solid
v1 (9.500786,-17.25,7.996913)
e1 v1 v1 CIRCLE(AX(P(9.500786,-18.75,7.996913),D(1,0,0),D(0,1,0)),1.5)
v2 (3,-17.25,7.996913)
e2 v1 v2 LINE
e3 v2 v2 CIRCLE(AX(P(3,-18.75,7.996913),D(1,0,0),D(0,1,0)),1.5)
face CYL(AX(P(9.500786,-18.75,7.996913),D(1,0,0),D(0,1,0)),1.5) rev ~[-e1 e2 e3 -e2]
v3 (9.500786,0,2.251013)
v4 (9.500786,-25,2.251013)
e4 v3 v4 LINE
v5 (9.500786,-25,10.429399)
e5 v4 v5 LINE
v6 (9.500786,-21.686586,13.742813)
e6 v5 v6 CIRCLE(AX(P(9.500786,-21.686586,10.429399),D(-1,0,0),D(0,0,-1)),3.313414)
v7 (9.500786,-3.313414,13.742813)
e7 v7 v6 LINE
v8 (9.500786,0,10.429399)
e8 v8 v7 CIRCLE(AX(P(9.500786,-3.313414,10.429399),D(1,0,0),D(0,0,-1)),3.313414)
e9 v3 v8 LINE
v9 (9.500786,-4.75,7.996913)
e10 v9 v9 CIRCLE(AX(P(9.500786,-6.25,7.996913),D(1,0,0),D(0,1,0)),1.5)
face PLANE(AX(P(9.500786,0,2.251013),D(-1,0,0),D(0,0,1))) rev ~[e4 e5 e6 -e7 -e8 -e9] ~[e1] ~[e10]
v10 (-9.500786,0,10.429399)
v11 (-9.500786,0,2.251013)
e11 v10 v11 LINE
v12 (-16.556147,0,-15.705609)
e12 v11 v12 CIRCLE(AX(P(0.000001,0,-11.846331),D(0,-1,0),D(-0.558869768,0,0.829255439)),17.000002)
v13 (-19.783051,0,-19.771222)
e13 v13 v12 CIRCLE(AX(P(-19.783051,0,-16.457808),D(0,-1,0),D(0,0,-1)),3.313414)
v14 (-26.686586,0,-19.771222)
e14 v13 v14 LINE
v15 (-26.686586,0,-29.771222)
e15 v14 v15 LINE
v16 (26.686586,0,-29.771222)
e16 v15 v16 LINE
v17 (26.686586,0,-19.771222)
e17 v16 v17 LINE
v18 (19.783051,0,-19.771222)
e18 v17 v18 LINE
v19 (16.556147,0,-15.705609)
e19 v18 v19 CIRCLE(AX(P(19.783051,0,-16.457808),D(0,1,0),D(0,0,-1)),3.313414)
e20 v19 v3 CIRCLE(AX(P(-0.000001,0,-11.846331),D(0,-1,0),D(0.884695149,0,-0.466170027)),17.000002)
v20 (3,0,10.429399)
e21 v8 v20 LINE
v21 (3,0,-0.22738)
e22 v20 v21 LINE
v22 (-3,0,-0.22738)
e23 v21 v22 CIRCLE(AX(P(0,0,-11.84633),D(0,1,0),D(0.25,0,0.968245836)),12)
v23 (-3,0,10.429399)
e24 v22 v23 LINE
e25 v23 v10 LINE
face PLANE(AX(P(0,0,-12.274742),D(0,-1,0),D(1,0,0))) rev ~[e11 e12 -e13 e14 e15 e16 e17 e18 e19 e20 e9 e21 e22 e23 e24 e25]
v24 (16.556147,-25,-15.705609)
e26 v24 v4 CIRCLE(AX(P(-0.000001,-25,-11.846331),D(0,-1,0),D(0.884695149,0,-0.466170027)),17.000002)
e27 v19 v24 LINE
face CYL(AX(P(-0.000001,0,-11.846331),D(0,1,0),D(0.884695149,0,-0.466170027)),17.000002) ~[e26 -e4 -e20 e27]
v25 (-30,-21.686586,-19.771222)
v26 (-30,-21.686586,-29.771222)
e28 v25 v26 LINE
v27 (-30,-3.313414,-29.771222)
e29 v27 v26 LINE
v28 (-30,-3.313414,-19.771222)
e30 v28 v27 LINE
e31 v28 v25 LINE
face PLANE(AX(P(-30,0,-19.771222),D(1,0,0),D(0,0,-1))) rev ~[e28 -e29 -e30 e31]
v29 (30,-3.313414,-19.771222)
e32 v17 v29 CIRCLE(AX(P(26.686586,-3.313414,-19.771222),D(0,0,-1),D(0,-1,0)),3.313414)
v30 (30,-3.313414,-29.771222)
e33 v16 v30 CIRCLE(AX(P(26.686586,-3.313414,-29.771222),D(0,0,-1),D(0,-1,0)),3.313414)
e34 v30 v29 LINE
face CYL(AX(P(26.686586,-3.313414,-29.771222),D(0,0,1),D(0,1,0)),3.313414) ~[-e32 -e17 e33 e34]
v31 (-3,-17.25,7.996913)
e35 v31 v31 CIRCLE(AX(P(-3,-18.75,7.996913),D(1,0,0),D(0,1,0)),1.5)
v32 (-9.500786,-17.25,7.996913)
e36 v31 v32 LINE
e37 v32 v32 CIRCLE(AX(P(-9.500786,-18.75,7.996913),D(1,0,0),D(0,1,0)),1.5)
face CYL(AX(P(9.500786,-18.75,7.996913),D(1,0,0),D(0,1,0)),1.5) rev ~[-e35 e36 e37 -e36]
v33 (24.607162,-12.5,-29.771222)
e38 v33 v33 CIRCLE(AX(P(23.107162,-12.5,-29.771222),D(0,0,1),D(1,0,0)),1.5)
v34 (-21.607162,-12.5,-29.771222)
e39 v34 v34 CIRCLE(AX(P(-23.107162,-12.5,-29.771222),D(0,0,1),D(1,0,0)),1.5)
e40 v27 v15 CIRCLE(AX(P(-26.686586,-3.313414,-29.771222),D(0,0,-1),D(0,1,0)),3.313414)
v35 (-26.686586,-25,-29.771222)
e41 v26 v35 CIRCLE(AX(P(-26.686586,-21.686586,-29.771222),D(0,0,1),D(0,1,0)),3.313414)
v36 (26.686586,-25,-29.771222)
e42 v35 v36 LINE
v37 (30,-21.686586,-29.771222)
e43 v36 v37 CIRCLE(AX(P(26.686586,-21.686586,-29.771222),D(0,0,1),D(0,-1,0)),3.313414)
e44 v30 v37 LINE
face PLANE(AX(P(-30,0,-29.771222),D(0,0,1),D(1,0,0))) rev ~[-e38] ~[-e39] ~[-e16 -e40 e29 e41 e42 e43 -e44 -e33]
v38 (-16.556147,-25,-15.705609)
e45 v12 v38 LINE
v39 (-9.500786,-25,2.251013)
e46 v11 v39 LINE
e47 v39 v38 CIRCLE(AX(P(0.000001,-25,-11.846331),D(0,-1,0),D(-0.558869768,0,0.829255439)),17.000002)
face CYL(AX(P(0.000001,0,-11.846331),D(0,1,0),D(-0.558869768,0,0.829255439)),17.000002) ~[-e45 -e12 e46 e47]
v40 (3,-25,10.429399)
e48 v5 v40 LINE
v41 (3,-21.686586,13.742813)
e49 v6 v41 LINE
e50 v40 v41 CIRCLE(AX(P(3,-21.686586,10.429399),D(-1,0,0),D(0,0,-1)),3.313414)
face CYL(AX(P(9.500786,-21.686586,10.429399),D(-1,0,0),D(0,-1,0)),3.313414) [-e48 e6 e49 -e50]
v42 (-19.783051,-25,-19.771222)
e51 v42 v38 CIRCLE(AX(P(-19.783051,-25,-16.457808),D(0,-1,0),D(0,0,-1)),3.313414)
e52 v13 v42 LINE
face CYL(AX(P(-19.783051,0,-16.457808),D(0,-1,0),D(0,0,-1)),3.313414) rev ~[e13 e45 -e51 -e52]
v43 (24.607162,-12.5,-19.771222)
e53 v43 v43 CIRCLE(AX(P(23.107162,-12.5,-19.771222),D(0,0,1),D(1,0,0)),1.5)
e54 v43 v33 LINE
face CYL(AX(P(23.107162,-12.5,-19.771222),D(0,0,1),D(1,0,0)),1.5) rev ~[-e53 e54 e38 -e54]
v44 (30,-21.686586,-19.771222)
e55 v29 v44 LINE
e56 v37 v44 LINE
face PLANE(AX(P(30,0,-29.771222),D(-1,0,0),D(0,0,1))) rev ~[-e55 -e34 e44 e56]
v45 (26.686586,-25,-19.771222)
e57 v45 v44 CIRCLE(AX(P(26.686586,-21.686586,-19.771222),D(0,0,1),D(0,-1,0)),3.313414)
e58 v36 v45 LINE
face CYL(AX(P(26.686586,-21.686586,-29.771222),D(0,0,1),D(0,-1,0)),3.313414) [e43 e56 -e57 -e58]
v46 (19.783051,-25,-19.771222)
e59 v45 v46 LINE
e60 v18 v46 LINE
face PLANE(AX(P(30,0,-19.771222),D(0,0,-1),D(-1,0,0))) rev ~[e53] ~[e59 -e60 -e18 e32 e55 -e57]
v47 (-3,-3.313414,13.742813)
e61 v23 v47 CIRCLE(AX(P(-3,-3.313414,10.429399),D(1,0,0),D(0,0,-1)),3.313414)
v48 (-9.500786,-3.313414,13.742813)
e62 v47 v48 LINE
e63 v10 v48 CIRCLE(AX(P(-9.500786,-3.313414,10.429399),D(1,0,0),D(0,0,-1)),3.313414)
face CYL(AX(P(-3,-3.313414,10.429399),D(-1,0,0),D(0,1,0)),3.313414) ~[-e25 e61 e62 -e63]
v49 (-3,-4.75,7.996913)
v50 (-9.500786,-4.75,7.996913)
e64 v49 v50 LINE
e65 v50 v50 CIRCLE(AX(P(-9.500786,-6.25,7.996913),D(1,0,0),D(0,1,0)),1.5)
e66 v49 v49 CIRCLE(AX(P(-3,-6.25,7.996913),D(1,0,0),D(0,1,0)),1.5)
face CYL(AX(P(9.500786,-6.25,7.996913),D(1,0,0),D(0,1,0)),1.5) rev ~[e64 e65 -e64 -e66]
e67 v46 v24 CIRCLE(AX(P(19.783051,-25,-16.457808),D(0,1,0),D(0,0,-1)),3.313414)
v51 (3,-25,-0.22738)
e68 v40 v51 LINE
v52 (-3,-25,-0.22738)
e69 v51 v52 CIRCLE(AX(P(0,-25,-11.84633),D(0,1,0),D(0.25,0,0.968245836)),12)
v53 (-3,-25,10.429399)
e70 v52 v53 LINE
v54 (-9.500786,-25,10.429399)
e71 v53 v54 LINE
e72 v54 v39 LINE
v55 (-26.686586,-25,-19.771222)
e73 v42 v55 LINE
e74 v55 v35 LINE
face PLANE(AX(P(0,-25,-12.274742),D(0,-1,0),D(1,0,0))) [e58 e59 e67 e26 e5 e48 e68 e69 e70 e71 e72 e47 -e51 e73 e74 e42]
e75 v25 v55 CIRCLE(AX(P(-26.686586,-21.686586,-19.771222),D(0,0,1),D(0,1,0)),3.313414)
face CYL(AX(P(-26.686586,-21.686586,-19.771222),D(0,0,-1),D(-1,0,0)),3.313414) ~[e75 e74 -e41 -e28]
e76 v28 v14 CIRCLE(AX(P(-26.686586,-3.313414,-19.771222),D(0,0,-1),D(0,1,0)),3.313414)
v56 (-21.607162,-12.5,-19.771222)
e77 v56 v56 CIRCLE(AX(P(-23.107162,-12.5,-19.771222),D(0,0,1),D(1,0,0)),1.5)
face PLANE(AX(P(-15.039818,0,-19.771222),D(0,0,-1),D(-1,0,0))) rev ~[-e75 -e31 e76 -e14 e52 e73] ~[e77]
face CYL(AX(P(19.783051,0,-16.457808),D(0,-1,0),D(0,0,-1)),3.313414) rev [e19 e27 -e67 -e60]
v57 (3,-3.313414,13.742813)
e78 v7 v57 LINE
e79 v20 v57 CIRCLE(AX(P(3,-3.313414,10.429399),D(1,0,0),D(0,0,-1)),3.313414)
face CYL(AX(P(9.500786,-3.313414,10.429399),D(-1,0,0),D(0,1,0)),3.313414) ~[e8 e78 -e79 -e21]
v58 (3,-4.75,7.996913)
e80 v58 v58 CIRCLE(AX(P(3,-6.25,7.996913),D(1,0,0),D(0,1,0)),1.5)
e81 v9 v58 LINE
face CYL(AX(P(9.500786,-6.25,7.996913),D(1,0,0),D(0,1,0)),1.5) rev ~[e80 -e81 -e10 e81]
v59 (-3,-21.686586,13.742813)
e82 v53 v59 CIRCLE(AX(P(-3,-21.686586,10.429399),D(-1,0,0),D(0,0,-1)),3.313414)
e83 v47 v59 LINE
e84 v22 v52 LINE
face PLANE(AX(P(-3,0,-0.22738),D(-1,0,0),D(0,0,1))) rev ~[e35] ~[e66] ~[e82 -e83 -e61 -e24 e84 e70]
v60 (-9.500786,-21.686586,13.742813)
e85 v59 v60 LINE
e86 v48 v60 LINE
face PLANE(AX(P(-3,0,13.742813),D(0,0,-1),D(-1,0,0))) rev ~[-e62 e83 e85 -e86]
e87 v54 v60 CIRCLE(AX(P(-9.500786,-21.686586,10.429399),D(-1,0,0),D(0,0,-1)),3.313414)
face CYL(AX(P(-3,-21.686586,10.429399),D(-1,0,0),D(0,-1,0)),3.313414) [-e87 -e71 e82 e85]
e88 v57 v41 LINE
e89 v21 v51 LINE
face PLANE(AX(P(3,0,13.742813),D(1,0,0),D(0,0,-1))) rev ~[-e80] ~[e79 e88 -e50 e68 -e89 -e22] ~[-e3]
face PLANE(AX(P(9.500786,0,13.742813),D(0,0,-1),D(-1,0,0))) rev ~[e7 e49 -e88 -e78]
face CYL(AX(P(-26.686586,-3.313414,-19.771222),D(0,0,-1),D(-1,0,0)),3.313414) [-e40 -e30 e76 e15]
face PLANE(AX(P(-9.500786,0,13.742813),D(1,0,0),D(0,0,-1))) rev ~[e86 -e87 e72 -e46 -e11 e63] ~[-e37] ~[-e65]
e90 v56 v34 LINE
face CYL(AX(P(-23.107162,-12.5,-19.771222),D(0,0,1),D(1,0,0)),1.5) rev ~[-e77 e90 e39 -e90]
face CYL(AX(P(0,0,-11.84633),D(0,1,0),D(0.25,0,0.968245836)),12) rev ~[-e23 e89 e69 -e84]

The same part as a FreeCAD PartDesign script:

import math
import FreeCAD as App
import Part
import Sketcher


def edges_at(feature, points):
    """Names of the edges that pass closest to the given points."""
    edges = feature.Shape.Edges
    near = lambda p: min(range(len(edges)), key=lambda i: edges[i].distToShape(Part.Vertex(*p))[0])
    return sorted({f"Edge{near(p) + 1}" for p in points})

doc = App.newDocument("Part")
params = doc.addObject("Spreadsheet::Sheet", "Params")
for row, (alias, value) in enumerate([
    ("sketch1_radius", "17.000002 mm"),
    ("sketch1_radius2", "12 mm"),
    ("sketch1_width", "60 mm"),
    ("sketch1_height", "10 mm"),
    ("pad1_length", "25 mm"),
    ("sketch2_diameter", "3 mm"),
    ("pocket1_length", "25 mm"),
    ("sketch3_diameter", "3 mm"),
    ("pocket2_length", "25 mm"),
    ("fillet_radius", "3.313414 mm"),
], start=1):
    params.set(f"A{row}", alias)
    params.set(f"B{row}", "=" + value)
    params.setAlias(f"B{row}", alias)

body = doc.addObject("PartDesign::Body", "Body")

sketch1 = doc.addObject("Sketcher::SketchObject", "Sketch")
body.addObject(sketch1)
sketch1.AttachmentSupport = (doc.XZ_Plane, [""])
sketch1.MapMode = "FlatFace"
sketch1.addGeometry([
    Part.LineSegment(App.Vector(-30, -29.771222, 0), App.Vector(30, -29.771222, 0)),
    Part.LineSegment(App.Vector(30, -29.771222, 0), App.Vector(30, -19.771222, 0)),
    Part.LineSegment(App.Vector(30, -19.771222, 0), App.Vector(15.039818, -19.771222, 0)),
    Part.ArcOfCircle(Part.Circle(App.Vector(-0.000001, -11.846331, 0), App.Vector(0, 0, 1), 17.000002), math.radians(-27.78597), math.radians(56.022329)),
    Part.LineSegment(App.Vector(9.500786, 2.251013, 0), App.Vector(9.500786, 13.742813, 0)),
    Part.LineSegment(App.Vector(9.500786, 13.742813, 0), App.Vector(3, 13.742813, 0)),
    Part.LineSegment(App.Vector(3, 13.742813, 0), App.Vector(3, -0.22738, 0)),
    Part.ArcOfCircle(Part.Circle(App.Vector(0, -11.84633, 0), App.Vector(0, 0, 1), 12), math.radians(104.477512), math.radians(435.522488)),
    Part.LineSegment(App.Vector(-3, -0.22738, 0), App.Vector(-3, 13.742813, 0)),
    Part.LineSegment(App.Vector(-3, 13.742813, 0), App.Vector(-9.500786, 13.742813, 0)),
    Part.LineSegment(App.Vector(-9.500786, 13.742813, 0), App.Vector(-9.500786, 2.251013, 0)),
    Part.ArcOfCircle(Part.Circle(App.Vector(0.000001, -11.846331, 0), App.Vector(0, 0, 1), 17.000002), math.radians(123.977671), math.radians(207.78597)),
    Part.LineSegment(App.Vector(-15.039818, -19.771222, 0), App.Vector(-30, -19.771222, 0)),
    Part.LineSegment(App.Vector(-30, -19.771222, 0), App.Vector(-30, -29.771222, 0)),
], False)
sketch1.addConstraint([
    Sketcher.Constraint("Coincident", 0, 2, 1, 1),
    Sketcher.Constraint("Coincident", 1, 2, 2, 1),
    Sketcher.Constraint("Coincident", 2, 2, 3, 1),
    Sketcher.Constraint("Coincident", 3, 2, 4, 1),
    Sketcher.Constraint("Coincident", 4, 2, 5, 1),
    Sketcher.Constraint("Coincident", 5, 2, 6, 1),
    Sketcher.Constraint("Coincident", 6, 2, 7, 2),
    Sketcher.Constraint("Coincident", 7, 1, 8, 1),
    Sketcher.Constraint("Coincident", 8, 2, 9, 1),
    Sketcher.Constraint("Coincident", 9, 2, 10, 1),
    Sketcher.Constraint("Coincident", 10, 2, 11, 1),
    Sketcher.Constraint("Coincident", 11, 2, 12, 1),
    Sketcher.Constraint("Coincident", 12, 2, 13, 1),
    Sketcher.Constraint("Coincident", 13, 2, 0, 1),
    Sketcher.Constraint("Horizontal", 0),
    Sketcher.Constraint("Vertical", 1),
    Sketcher.Constraint("Horizontal", 2),
    Sketcher.Constraint("Vertical", 4),
    Sketcher.Constraint("Horizontal", 5),
    Sketcher.Constraint("Vertical", 6),
    Sketcher.Constraint("Vertical", 8),
    Sketcher.Constraint("Horizontal", 9),
    Sketcher.Constraint("Vertical", 10),
    Sketcher.Constraint("Horizontal", 12),
    Sketcher.Constraint("Vertical", 13),
    Sketcher.Constraint("Coincident", 7, 3, 3, 3),
    Sketcher.Constraint("Coincident", 11, 3, 3, 3),
    Sketcher.Constraint("Equal", 3, 11),
    Sketcher.Constraint("Symmetric", 6, 2, 7, 1, -2),
    Sketcher.Constraint("Symmetric", 4, 2, 9, 2, -2),
    Sketcher.Constraint("Symmetric", 1, 2, 12, 2, -2),
    Sketcher.Constraint("Radius", 3, 17.000002),
    Sketcher.Constraint("Radius", 7, 12.0),
    Sketcher.Constraint("DistanceX", 0, 1, 0, 2, 60.0),
    Sketcher.Constraint("DistanceY", 1, 1, 1, 2, 10.0),
    Sketcher.Constraint("DistanceX", -1, 1, 5, 2, 3.0),
    Sketcher.Constraint("DistanceY", 4, 1, 4, 2, 11.4918),
    Sketcher.Constraint("DistanceX", 2, 2, 2, 1, 14.960182),
    Sketcher.Constraint("DistanceX", 5, 2, 5, 1, 6.500786),
    Sketcher.Constraint("DistanceY", 3, 3, -1, 1, 11.846331),
])
sketch1.setExpression("Constraints[31]", "Params.sketch1_radius")
sketch1.setExpression("Constraints[32]", "Params.sketch1_radius2")
sketch1.setExpression("Constraints[33]", "Params.sketch1_width")
sketch1.setExpression("Constraints[34]", "Params.sketch1_height")
pad1 = doc.addObject("PartDesign::Pad", "Pad")
body.addObject(pad1)
pad1.Profile = sketch1
pad1.setExpression("Length", "Params.pad1_length")

sketch2 = doc.addObject("Sketcher::SketchObject", "Sketch001")
body.addObject(sketch2)
sketch2.AttachmentSupport = (doc.XY_Plane, [""])
sketch2.MapMode = "FlatFace"
sketch2.AttachmentOffset = App.Placement(App.Vector(0, 0, -19.771222), App.Rotation())
sketch2.addGeometry([
    Part.Circle(App.Vector(-23.107162, -12.5, 0), App.Vector(0, 0, 1), 1.5),
    Part.Circle(App.Vector(23.107162, -12.5, 0), App.Vector(0, 0, 1), 1.5),
], False)
sketch2.addConstraint([
    Sketcher.Constraint("Equal", 0, 1),
    Sketcher.Constraint("Symmetric", 0, 3, 1, 3, -2),
    Sketcher.Constraint("Diameter", 0, 3.0),
    Sketcher.Constraint("DistanceY", 0, 3, -1, 1, 12.5),
    Sketcher.Constraint("DistanceX", 0, 3, -1, 1, 23.107162),
])
sketch2.setExpression("Constraints[2]", "Params.sketch2_diameter")
pocket1 = doc.addObject("PartDesign::Pocket", "Pocket")
body.addObject(pocket1)
pocket1.Profile = sketch2
pocket1.setExpression("Length", "Params.pocket1_length")

sketch3 = doc.addObject("Sketcher::SketchObject", "Sketch002")
body.addObject(sketch3)
sketch3.AttachmentSupport = (doc.YZ_Plane, [""])
sketch3.MapMode = "FlatFace"
sketch3.AttachmentOffset = App.Placement(App.Vector(0, 0, 9.500786), App.Rotation())
sketch3.addGeometry([
    Part.Circle(App.Vector(-18.75, 7.996913, 0), App.Vector(0, 0, 1), 1.5),
    Part.Circle(App.Vector(-6.25, 7.996913, 0), App.Vector(0, 0, 1), 1.5),
], False)
sketch3.addConstraint([
    Sketcher.Constraint("Equal", 0, 1),
    Sketcher.Constraint("Horizontal", 0, 3, 1, 3),
    Sketcher.Constraint("Diameter", 0, 3.0),
    Sketcher.Constraint("DistanceX", 0, 3, 1, 3, 12.5),
    Sketcher.Constraint("DistanceX", 0, 3, -1, 1, 18.75),
    Sketcher.Constraint("DistanceY", -1, 1, 0, 3, 7.996913),
])
sketch3.setExpression("Constraints[2]", "Params.sketch3_diameter")
pocket2 = doc.addObject("PartDesign::Pocket", "Pocket001")
body.addObject(pocket2)
pocket2.Profile = sketch3
pocket2.setExpression("Length", "Params.pocket2_length")
doc.recompute()

fillet = doc.addObject("PartDesign::Fillet", "Fillet")
body.addObject(fillet)
fillet.Base = (pocket2, edges_at(pocket2, [
    (-6.25, -25, 13.743),
    (6.25, -25, 13.743),
    (-6.25, 0, 13.743),
    (6.25, 0, 13.743),
    (30, -25, -24.771),
    (30, 0, -24.771),
    (-30, 0, -24.771),
    (-30, -25, -24.771),
    (15.04, -12.5, -19.771),
    (-15.04, -12.5, -19.771),
]))
fillet.setExpression("Radius", "Params.fillet_radius")

doc.recompute()
